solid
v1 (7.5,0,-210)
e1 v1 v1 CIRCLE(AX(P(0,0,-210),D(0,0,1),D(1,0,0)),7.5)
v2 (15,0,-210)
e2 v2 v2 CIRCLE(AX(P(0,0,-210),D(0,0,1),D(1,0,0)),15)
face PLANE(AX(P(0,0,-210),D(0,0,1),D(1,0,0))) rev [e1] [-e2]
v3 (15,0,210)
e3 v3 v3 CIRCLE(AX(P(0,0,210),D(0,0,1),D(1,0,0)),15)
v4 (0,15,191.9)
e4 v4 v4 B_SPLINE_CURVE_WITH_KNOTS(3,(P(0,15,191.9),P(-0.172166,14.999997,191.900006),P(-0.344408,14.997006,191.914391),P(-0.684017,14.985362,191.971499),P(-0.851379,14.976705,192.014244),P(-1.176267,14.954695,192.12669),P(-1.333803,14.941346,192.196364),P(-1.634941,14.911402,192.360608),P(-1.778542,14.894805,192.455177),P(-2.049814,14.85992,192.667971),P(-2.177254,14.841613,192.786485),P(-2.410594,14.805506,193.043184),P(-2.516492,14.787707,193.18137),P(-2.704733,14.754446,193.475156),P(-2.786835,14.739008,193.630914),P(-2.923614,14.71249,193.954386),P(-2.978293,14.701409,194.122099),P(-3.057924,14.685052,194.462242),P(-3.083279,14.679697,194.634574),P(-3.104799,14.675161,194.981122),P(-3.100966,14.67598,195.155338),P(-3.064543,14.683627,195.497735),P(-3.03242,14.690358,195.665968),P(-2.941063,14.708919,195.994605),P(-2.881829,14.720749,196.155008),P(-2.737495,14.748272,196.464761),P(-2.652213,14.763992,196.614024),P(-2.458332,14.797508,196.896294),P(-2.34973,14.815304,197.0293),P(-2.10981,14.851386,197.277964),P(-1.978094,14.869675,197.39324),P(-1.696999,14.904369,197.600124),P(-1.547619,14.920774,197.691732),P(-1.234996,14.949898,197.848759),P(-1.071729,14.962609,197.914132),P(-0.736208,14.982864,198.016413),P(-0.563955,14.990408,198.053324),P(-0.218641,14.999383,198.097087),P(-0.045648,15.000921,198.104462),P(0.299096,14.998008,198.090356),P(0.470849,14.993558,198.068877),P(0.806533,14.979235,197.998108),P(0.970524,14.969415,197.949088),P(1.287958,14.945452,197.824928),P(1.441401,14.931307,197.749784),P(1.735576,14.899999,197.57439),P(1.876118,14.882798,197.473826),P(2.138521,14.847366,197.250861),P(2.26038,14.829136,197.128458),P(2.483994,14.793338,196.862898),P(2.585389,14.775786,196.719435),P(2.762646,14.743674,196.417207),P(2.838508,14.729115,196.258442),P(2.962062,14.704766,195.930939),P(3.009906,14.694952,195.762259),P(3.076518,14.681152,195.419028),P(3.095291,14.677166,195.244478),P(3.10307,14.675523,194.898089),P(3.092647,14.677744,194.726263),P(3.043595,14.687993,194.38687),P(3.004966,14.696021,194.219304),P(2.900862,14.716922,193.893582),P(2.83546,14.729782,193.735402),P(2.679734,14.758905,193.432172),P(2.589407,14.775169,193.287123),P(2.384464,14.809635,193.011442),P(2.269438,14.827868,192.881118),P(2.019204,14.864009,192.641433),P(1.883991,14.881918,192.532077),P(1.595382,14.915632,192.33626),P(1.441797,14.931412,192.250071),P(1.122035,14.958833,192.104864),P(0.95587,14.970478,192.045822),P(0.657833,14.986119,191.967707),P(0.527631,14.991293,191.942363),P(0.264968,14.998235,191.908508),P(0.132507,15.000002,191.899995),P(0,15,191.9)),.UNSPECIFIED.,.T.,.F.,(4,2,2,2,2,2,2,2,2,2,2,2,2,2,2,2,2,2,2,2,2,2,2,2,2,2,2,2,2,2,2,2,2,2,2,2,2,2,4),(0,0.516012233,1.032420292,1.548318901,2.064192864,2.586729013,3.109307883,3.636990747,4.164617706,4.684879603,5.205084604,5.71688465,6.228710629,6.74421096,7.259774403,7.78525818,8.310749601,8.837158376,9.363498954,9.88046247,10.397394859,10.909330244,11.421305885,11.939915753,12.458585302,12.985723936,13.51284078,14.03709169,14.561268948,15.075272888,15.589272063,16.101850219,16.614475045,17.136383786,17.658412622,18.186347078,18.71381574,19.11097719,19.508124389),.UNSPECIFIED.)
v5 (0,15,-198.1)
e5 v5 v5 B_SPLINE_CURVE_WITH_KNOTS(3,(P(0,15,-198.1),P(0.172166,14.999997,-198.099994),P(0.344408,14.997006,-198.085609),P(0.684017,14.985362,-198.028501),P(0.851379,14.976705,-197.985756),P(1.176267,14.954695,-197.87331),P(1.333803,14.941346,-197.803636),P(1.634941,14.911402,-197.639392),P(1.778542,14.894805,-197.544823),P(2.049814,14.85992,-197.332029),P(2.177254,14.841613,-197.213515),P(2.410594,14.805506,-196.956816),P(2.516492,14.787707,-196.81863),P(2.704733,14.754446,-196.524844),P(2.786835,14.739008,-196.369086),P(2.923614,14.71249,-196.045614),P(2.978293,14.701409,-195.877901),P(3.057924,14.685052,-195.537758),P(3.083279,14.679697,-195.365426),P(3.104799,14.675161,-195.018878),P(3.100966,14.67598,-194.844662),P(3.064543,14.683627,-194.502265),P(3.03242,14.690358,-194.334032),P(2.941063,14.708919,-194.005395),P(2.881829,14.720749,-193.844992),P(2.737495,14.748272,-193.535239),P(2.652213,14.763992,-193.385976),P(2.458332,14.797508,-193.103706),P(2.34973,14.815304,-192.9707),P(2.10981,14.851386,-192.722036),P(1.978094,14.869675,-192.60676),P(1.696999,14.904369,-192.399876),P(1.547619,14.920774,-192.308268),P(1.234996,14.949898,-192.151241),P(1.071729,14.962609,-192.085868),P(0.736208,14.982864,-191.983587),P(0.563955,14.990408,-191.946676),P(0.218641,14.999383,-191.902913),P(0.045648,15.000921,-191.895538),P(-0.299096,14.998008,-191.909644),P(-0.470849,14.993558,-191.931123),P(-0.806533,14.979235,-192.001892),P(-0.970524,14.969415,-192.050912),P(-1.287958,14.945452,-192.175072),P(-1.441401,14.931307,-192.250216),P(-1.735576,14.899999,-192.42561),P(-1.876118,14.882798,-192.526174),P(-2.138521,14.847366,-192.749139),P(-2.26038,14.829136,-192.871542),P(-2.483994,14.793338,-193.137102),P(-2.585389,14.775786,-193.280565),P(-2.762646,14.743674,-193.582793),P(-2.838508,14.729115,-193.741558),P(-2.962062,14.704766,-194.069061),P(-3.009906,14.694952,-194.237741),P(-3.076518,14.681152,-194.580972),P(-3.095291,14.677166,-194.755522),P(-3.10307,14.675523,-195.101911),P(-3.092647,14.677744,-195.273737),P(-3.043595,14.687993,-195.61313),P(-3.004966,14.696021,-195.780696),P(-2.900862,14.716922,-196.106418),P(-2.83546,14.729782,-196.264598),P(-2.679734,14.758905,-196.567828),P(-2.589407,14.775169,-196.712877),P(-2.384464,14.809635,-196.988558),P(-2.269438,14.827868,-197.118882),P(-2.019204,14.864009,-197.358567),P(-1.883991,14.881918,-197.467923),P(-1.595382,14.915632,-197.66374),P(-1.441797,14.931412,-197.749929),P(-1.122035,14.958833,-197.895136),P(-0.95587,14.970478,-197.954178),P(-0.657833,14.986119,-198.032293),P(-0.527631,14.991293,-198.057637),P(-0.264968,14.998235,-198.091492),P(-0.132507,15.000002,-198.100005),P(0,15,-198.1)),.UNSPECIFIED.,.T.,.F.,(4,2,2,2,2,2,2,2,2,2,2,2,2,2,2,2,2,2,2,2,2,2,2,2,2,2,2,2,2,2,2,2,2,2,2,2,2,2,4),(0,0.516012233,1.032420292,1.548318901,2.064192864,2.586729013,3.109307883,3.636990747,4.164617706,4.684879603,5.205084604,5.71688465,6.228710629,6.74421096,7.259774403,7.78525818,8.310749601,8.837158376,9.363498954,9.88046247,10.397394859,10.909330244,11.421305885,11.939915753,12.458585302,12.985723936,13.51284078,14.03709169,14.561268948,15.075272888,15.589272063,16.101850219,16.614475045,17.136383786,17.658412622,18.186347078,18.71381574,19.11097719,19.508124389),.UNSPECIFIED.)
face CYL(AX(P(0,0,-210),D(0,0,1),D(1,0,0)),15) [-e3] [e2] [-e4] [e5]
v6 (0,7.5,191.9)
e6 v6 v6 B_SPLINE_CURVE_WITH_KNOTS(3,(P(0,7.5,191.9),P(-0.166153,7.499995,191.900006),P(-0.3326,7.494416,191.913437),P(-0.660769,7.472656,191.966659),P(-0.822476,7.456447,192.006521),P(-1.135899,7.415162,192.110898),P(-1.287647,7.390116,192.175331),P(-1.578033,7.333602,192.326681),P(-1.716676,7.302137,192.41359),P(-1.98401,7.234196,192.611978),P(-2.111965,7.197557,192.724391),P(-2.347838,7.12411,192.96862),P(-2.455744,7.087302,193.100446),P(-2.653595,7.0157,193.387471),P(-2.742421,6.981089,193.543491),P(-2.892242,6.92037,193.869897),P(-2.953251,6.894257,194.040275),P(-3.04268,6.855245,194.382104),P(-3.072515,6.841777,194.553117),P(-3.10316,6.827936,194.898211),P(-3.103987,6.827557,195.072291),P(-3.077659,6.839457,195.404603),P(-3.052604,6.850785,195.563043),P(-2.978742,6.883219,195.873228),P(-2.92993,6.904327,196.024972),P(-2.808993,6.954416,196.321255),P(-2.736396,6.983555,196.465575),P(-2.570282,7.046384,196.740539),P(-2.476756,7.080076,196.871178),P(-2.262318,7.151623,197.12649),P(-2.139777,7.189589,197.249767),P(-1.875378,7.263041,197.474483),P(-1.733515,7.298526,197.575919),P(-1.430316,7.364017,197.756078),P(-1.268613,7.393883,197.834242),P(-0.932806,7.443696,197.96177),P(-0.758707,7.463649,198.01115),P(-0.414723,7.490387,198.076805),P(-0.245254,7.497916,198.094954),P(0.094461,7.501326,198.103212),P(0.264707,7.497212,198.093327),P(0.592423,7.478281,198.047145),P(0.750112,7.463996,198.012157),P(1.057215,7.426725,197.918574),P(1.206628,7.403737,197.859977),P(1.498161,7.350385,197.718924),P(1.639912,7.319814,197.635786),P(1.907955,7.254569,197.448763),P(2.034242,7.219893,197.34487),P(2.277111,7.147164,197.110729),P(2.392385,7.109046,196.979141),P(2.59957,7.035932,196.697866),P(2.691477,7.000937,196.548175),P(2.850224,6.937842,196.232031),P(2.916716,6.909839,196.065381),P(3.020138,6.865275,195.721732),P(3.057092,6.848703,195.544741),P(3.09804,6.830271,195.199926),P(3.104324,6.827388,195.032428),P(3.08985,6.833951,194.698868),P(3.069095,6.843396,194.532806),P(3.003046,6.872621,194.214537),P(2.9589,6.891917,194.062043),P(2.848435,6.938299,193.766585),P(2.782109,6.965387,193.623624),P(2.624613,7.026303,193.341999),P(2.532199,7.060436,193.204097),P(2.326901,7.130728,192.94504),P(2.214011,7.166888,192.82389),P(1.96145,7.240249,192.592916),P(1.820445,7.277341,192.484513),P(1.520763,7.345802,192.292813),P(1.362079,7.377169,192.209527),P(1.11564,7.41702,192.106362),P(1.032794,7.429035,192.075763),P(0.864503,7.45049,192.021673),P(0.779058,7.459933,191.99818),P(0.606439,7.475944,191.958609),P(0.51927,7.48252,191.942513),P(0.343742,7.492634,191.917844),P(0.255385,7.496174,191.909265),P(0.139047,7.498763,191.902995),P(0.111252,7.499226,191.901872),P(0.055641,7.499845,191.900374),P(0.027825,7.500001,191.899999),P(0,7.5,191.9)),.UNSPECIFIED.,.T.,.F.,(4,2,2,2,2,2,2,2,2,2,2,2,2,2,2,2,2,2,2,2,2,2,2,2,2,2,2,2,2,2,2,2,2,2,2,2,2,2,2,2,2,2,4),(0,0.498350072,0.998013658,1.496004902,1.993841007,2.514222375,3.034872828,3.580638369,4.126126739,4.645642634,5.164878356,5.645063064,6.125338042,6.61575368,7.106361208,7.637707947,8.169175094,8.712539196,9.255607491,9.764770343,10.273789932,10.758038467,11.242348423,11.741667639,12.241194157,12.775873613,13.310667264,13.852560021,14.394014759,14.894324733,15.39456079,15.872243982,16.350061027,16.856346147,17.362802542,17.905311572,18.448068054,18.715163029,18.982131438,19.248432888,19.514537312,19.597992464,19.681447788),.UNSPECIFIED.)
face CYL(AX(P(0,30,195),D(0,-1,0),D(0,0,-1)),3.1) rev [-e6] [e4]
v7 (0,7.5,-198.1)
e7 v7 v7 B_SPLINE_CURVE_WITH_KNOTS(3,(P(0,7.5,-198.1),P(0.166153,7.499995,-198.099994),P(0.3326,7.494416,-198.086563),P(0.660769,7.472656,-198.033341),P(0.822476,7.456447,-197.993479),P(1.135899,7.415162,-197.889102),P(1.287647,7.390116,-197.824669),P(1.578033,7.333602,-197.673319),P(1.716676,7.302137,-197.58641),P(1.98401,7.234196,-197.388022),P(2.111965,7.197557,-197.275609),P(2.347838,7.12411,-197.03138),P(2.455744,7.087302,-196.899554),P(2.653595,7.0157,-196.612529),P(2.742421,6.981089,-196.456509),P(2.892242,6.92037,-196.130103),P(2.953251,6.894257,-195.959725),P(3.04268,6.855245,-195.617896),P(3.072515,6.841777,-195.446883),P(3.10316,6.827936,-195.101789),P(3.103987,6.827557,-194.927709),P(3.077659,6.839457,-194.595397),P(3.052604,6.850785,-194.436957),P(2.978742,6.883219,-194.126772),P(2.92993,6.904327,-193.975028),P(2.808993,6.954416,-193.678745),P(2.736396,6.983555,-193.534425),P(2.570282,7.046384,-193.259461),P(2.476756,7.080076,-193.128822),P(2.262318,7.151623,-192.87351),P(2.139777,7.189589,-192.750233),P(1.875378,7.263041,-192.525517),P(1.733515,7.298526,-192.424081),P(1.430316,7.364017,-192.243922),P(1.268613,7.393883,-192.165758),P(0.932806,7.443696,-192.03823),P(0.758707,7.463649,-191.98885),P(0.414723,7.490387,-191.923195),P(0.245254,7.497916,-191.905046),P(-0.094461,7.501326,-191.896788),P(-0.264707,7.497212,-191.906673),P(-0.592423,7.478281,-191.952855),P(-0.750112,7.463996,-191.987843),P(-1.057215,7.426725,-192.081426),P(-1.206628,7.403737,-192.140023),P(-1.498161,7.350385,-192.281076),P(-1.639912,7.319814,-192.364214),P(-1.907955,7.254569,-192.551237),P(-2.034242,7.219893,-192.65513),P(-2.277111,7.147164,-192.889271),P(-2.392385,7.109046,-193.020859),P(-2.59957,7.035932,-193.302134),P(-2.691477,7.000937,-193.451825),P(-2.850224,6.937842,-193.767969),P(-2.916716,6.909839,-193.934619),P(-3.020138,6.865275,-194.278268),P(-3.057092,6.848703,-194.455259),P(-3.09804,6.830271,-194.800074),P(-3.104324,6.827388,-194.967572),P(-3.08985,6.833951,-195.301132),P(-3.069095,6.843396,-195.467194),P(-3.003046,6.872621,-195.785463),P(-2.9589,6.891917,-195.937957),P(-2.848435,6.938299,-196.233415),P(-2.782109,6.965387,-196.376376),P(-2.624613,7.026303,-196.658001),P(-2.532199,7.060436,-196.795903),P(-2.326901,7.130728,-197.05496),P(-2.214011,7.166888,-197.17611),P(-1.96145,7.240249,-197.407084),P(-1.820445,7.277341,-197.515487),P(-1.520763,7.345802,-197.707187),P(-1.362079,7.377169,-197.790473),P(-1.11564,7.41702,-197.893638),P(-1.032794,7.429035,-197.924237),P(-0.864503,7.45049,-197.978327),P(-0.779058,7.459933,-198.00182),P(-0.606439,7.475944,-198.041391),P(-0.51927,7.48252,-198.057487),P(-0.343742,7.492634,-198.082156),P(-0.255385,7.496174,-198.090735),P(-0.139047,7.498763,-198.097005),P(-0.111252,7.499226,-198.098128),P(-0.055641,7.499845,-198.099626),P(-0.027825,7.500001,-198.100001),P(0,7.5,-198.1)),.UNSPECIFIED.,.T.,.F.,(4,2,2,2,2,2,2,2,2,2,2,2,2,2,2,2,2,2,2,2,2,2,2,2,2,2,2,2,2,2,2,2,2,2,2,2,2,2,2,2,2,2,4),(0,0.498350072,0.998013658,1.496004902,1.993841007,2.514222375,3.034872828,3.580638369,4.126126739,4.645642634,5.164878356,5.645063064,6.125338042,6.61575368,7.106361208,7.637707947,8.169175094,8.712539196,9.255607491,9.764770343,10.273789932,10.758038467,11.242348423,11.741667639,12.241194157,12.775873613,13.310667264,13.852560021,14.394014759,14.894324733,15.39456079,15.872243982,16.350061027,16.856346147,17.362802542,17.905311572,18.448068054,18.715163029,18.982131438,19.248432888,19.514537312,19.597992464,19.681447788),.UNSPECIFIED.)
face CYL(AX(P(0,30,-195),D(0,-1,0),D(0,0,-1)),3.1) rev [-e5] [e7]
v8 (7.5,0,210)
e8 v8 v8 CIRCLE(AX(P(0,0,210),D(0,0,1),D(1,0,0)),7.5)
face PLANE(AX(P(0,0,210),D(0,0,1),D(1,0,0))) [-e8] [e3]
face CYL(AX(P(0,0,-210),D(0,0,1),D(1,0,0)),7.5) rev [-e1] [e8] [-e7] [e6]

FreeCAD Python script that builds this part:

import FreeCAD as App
import Part
import Sketcher
Q = App.Units.Quantity

doc = App.newDocument("Part")
params = doc.addObject("Spreadsheet::Sheet", "Params")
for row, (alias, value) in enumerate([
    ("sketch1_diameter", "30 mm"),
    ("sketch1_diameter2", "15 mm"),
    ("pad1_length", "210 mm"),
    ("pad1_length2", "210 mm"),
    ("sketch2_diameter", "6.2 mm"),
    ("pocket1_length", "30 mm"),
], start=1):
    params.set(f"A{row}", alias)
    params.set(f"B{row}", "=" + value)
    params.setAlias(f"B{row}", alias)

body = doc.addObject("PartDesign::Body", "Body")

sketch1 = body.newObject("Sketcher::SketchObject", "Sketch")
sketch1.AttachmentSupport = (doc.getObject("XY_Plane"), [""])
sketch1.MapMode = "FlatFace"
sketch1.addGeometry([
    Part.Circle(App.Vector(0, 0, 0), App.Vector(0, 0, 1), 15),
    Part.Circle(App.Vector(0, 0, 0), App.Vector(0, 0, 1), 7.5),
], False)
sketch1.addConstraint([
    Sketcher.Constraint("Coincident", 0, 3, -1, 1),
    Sketcher.Constraint("Coincident", 1, 3, -1, 1),
    Sketcher.Constraint("Diameter", 0, Q("30 mm")),
    Sketcher.Constraint("Diameter", 1, Q("15 mm")),
])
sketch1.setExpression("Constraints[2]", "Params.sketch1_diameter")
sketch1.setExpression("Constraints[3]", "Params.sketch1_diameter2")
pad1 = body.newObject("PartDesign::Pad", "Pad")
pad1.Profile = sketch1
pad1.Type = "TwoLengths"
pad1.setExpression("Length", "Params.pad1_length")
pad1.setExpression("Length2", "Params.pad1_length2")

sketch2 = body.newObject("Sketcher::SketchObject", "Sketch001")
sketch2.AttachmentSupport = (doc.getObject("XZ_Plane"), [""])
sketch2.MapMode = "FlatFace"
sketch2.addGeometry(Part.Circle(App.Vector(0, -195, 0), App.Vector(0, 0, 1), 3.1), False)
sketch2.addConstraint([
    Sketcher.Constraint("PointOnObject", 0, 3, -2),
    Sketcher.Constraint("Diameter", 0, Q("6.2 mm")),
    Sketcher.Constraint("DistanceY", 0, 3, -1, 1, Q("195 mm")),
])
sketch2.setExpression("Constraints[1]", "Params.sketch2_diameter")
pocket1 = body.newObject("PartDesign::Pocket", "Pocket")
pocket1.Profile = sketch2
pocket1.setExpression("Length", "Params.pocket1_length")
doc.recompute()

mirrored = body.newObject("PartDesign::Mirrored", "Mirrored")
mirrored.Originals = [pocket1]
mirrored.MirrorPlane = (doc.getObject("XY_Plane"), [""])
body.Tip = mirrored

doc.recompute()
